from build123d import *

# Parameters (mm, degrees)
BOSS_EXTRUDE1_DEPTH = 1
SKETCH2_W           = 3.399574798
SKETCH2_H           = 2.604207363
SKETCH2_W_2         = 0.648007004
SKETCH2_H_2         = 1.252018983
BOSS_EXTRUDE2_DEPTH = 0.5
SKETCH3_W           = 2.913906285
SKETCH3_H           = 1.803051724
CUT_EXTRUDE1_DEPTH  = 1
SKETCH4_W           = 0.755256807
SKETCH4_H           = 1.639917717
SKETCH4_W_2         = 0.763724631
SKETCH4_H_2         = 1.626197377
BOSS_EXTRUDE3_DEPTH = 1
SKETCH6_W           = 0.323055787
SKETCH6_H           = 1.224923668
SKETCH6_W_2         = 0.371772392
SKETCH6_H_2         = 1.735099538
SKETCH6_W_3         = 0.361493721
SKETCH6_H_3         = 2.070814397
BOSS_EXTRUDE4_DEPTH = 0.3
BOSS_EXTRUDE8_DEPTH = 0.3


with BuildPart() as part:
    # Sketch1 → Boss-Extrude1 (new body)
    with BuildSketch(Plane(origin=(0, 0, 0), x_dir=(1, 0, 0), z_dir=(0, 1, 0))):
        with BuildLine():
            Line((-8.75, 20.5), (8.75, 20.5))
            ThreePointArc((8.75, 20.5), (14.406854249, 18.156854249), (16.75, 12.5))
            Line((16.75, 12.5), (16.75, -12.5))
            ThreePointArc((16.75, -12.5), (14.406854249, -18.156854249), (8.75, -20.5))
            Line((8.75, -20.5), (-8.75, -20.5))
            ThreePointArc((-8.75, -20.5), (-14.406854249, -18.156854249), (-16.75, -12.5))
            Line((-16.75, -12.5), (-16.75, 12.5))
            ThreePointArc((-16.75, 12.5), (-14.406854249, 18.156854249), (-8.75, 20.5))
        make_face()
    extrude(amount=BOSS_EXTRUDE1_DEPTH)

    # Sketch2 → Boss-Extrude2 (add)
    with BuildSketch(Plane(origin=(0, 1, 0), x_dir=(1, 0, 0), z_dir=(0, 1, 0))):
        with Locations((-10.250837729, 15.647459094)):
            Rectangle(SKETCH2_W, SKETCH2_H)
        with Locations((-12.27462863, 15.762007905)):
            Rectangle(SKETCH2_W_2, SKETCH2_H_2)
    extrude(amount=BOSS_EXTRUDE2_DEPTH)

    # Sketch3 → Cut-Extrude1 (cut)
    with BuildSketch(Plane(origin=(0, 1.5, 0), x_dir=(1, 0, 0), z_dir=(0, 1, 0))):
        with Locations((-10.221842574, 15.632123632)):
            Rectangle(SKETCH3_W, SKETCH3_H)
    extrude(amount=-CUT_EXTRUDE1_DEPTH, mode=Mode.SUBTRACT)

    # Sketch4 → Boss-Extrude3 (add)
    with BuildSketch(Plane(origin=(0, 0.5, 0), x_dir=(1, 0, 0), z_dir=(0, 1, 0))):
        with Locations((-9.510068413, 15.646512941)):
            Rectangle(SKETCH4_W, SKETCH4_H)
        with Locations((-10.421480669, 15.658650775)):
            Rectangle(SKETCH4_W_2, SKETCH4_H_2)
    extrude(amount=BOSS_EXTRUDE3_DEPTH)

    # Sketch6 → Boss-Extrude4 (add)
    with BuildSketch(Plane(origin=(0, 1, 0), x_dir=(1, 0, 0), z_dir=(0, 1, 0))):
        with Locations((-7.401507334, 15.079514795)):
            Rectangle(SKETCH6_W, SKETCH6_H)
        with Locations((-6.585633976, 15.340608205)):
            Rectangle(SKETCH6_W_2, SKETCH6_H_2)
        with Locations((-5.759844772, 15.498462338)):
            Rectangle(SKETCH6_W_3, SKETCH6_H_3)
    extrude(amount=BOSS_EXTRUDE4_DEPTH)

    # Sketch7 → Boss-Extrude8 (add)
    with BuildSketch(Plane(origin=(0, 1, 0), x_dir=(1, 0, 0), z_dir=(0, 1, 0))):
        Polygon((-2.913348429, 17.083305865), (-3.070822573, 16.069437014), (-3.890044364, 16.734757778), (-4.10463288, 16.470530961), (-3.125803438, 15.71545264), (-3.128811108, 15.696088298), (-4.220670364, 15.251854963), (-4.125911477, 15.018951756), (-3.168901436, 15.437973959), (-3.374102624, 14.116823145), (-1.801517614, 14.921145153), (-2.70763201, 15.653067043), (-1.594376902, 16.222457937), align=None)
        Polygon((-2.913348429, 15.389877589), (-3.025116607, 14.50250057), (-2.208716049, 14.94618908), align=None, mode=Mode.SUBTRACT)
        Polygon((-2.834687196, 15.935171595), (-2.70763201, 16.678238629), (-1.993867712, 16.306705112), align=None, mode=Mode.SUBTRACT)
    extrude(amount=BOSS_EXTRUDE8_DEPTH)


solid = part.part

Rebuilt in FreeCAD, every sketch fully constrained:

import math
import FreeCAD as App
import Part
import Sketcher
from FreeCAD import Vector
Q = App.Units.Quantity

doc = App.newDocument("Part")
body = doc.addObject("PartDesign::Body", "Body")

# Sketch on XZ plane
sketch1 = body.newObject("Sketcher::SketchObject", "Sketch")
sketch1.AttachmentSupport = (doc.getObject("XZ_Plane"), [""])
sketch1.MapMode = "FlatFace"
sketch1.addGeometry([
    Part.LineSegment(Vector(9, -20, 0), Vector(-9, -20, 0)),  # 0
    Part.ArcOfCircle(Part.Circle(Vector(-9, -12, 0), Vector(0, 0, 1), 8), math.radians(-180), math.radians(-90)),  # 1
    Part.LineSegment(Vector(-17, -12, 0), Vector(-17, 12, 0)),  # 2
    Part.ArcOfCircle(Part.Circle(Vector(-9, 12, 0), Vector(0, 0, 1), 8), math.radians(90), math.radians(180)),  # 3
    Part.LineSegment(Vector(-9, 20, 0), Vector(9, 20, 0)),  # 4
    Part.ArcOfCircle(Part.Circle(Vector(9, 12, 0), Vector(0, 0, 1), 8), math.radians(0), math.radians(90)),  # 5
    Part.LineSegment(Vector(17, 12, 0), Vector(17, -12, 0)),  # 6
    Part.ArcOfCircle(Part.Circle(Vector(9, -12, 0), Vector(0, 0, 1), 8), math.radians(-90), math.radians(0)),  # 7
], False)
sketch1.addConstraint([
    Sketcher.Constraint("Tangent", 0, 2, 1, 2),
    Sketcher.Constraint("Tangent", 1, 1, 2, 1),
    Sketcher.Constraint("Tangent", 2, 2, 3, 2),
    Sketcher.Constraint("Tangent", 3, 1, 4, 1),
    Sketcher.Constraint("Tangent", 4, 2, 5, 2),
    Sketcher.Constraint("Tangent", 5, 1, 6, 1),
    Sketcher.Constraint("Tangent", 6, 2, 7, 2),
    Sketcher.Constraint("Tangent", 7, 1, 0, 1),
    Sketcher.Constraint("Horizontal", 0),
    Sketcher.Constraint("Vertical", 2),
    Sketcher.Constraint("Horizontal", 4),
    Sketcher.Constraint("Vertical", 6),
    Sketcher.Constraint("Equal", 1, 3),
    Sketcher.Constraint("Equal", 3, 5),
    Sketcher.Constraint("Equal", 5, 7),
    Sketcher.Constraint("Symmetric", 1, 3, 5, 3, -1, 1),
    Sketcher.Constraint("Radius", 1, Q("8 mm")),
    Sketcher.Constraint("DistanceY", 2, 1, 2, 2, Q("25 mm")),
    Sketcher.Constraint("DistanceX", 0, 2, 0, 1, Q("17.5 mm")),
])
pad1 = body.newObject("PartDesign::Pad", "Pad")
pad1.Profile = sketch1
pad1.Length = 1
pad1.Reversed = True

# Sketch on XZ plane
sketch2 = body.newObject("Sketcher::SketchObject", "Sketch001")
sketch2.AttachmentSupport = (doc.getObject("XZ_Plane"), [""])
sketch2.MapMode = "FlatFace"
sketch2.AttachmentOffset = App.Placement(Vector(0, 0, -1), App.Rotation())
sketch2.addGeometry([
    Part.LineSegment(Vector(-12, -15.1, 0), Vector(-12, -14.3, 0)),  # 0
    Part.LineSegment(Vector(-12, -14.3, 0), Vector(-8.6, -14.3, 0)),  # 1
    Part.LineSegment(Vector(-8.6, -14.3, 0), Vector(-8.6, -16.9, 0)),  # 2
    Part.LineSegment(Vector(-8.6, -16.9, 0), Vector(-12, -16.9, 0)),  # 3
    Part.LineSegment(Vector(-12, -16.9, 0), Vector(-12, -16.4, 0)),  # 4
    Part.LineSegment(Vector(-12, -16.4, 0), Vector(-12.6, -16.4, 0)),  # 5
    Part.LineSegment(Vector(-12.6, -16.4, 0), Vector(-12.6, -15.1, 0)),  # 6
    Part.LineSegment(Vector(-12.6, -15.1, 0), Vector(-12, -15.1, 0)),  # 7
], False)
sketch2.addConstraint([
    Sketcher.Constraint("Coincident", 0, 2, 1, 1),
    Sketcher.Constraint("Coincident", 1, 2, 2, 1),
    Sketcher.Constraint("Coincident", 2, 2, 3, 1),
    Sketcher.Constraint("Coincident", 3, 2, 4, 1),
    Sketcher.Constraint("Coincident", 4, 2, 5, 1),
    Sketcher.Constraint("Coincident", 5, 2, 6, 1),
    Sketcher.Constraint("Coincident", 6, 2, 7, 1),
    Sketcher.Constraint("Coincident", 7, 2, 0, 1),
    Sketcher.Constraint("Vertical", 0),
    Sketcher.Constraint("Horizontal", 1),
    Sketcher.Constraint("Vertical", 2),
    Sketcher.Constraint("Horizontal", 3),
    Sketcher.Constraint("Vertical", 4),
    Sketcher.Constraint("Horizontal", 5),
    Sketcher.Constraint("Vertical", 6),
    Sketcher.Constraint("Horizontal", 7),
    Sketcher.Constraint("Vertical", 0, 2, 3, 2),
    Sketcher.Constraint("DistanceY", 6, 2, -1, 1, Q("15.135998 mm")),
    Sketcher.Constraint("DistanceY", 6, 1, 6, 2, Q("1.252019 mm")),
    Sketcher.Constraint("DistanceX", 1, 1, 1, 2, Q("3.399575 mm")),
    Sketcher.Constraint("DistanceX", 5, 2, 5, 1, Q("0.648007 mm")),
    Sketcher.Constraint("DistanceY", 0, 1, 0, 2, Q("0.790643 mm")),
    Sketcher.Constraint("DistanceY", 2, 2, 2, 1, Q("2.604207 mm")),
    Sketcher.Constraint("DistanceX", 1, 2, -1, 1, Q("8.55105 mm")),
])
pad2 = body.newObject("PartDesign::Pad", "Pad001")
pad2.Profile = sketch2
pad2.Length = 0.5
pad2.Reversed = True

# Sketch on XZ plane
sketch3 = body.newObject("Sketcher::SketchObject", "Sketch002")
sketch3.AttachmentSupport = (doc.getObject("XZ_Plane"), [""])
sketch3.MapMode = "FlatFace"
sketch3.AttachmentOffset = App.Placement(Vector(0, 0, -1.5), App.Rotation())
sketch3.addGeometry([
    Part.LineSegment(Vector(-11.7, -16.5, 0), Vector(-11.7, -14.7, 0)),
    Part.LineSegment(Vector(-11.7, -14.7, 0), Vector(-8.8, -14.7, 0)),
    Part.LineSegment(Vector(-8.8, -14.7, 0), Vector(-8.8, -16.5, 0)),
    Part.LineSegment(Vector(-8.8, -16.5, 0), Vector(-11.7, -16.5, 0)),
], False)
sketch3.addConstraint([
    Sketcher.Constraint("Coincident", 0, 2, 1, 1),
    Sketcher.Constraint("Coincident", 1, 2, 2, 1),
    Sketcher.Constraint("Coincident", 2, 2, 3, 1),
    Sketcher.Constraint("Coincident", 3, 2, 0, 1),
    Sketcher.Constraint("Vertical", 0),
    Sketcher.Constraint("Horizontal", 1),
    Sketcher.Constraint("Vertical", 2),
    Sketcher.Constraint("Horizontal", 3),
    Sketcher.Constraint("DistanceY", 0, 1, 0, 2, Q("1.803052 mm")),
    Sketcher.Constraint("DistanceX", 1, 1, 1, 2, Q("2.913906 mm")),
    Sketcher.Constraint("DistanceX", 1, 2, -1, 1, Q("8.764889 mm")),
    Sketcher.Constraint("DistanceY", 2, 2, -1, 1, Q("16.533649 mm")),
])
pocket1 = body.newObject("PartDesign::Pocket", "Pocket")
pocket1.Profile = sketch3
pocket1.Length = 1
pocket1.Reversed = True

# Sketch on XZ plane
sketch4 = body.newObject("Sketcher::SketchObject", "Sketch003")
sketch4.AttachmentSupport = (doc.getObject("XZ_Plane"), [""])
sketch4.MapMode = "FlatFace"
sketch4.AttachmentOffset = App.Placement(Vector(0, 0, -0.5), App.Rotation())
sketch4.addGeometry([
    Part.LineSegment(Vector(-9.9, -16.5, 0), Vector(-9.9, -14.8, 0)),  # 0
    Part.LineSegment(Vector(-9.9, -14.8, 0), Vector(-9.1, -14.8, 0)),  # 1
    Part.LineSegment(Vector(-9.1, -14.8, 0), Vector(-9.1, -16.5, 0)),  # 2
    Part.LineSegment(Vector(-9.1, -16.5, 0), Vector(-9.9, -16.5, 0)),  # 3
    Part.LineSegment(Vector(-10.8, -16.5, 0), Vector(-10.8, -14.8, 0)),  # 4
    Part.LineSegment(Vector(-10.8, -14.8, 0), Vector(-10, -14.8, 0)),  # 5
    Part.LineSegment(Vector(-10, -14.8, 0), Vector(-10, -16.5, 0)),  # 6
    Part.LineSegment(Vector(-10, -16.5, 0), Vector(-10.8, -16.5, 0)),  # 7
], False)
sketch4.addConstraint([
    Sketcher.Constraint("Coincident", 0, 2, 1, 1),
    Sketcher.Constraint("Coincident", 1, 2, 2, 1),
    Sketcher.Constraint("Coincident", 2, 2, 3, 1),
    Sketcher.Constraint("Coincident", 3, 2, 0, 1),
    Sketcher.Constraint("Coincident", 4, 2, 5, 1),
    Sketcher.Constraint("Coincident", 5, 2, 6, 1),
    Sketcher.Constraint("Coincident", 6, 2, 7, 1),
    Sketcher.Constraint("Coincident", 7, 2, 4, 1),
    Sketcher.Constraint("Vertical", 0),
    Sketcher.Constraint("Horizontal", 1),
    Sketcher.Constraint("Vertical", 2),
    Sketcher.Constraint("Horizontal", 3),
    Sketcher.Constraint("Vertical", 4),
    Sketcher.Constraint("Horizontal", 5),
    Sketcher.Constraint("Vertical", 6),
    Sketcher.Constraint("Horizontal", 7),
    Sketcher.Constraint("DistanceY", 4, 2, 0, 2, Q("0.018998 mm")),
    Sketcher.Constraint("DistanceX", 1, 1, 1, 2, Q("0.755257 mm")),
    Sketcher.Constraint("DistanceX", 5, 1, 5, 2, Q("0.763725 mm")),
    Sketcher.Constraint("DistanceY", 0, 1, 0, 2, Q("1.639918 mm")),
    Sketcher.Constraint("DistanceY", 4, 1, 4, 2, Q("1.626197 mm")),
    Sketcher.Constraint("DistanceX", 1, 2, -1, 1, Q("9.13244 mm")),
    Sketcher.Constraint("DistanceY", 2, 2, -1, 1, Q("16.466472 mm")),
    Sketcher.Constraint("DistanceX", 5, 2, -1, 1, Q("10.039618 mm")),
])
pad3 = body.newObject("PartDesign::Pad", "Pad002")
pad3.Profile = sketch4
pad3.Length = 1
pad3.Reversed = True

# Sketch on XZ plane
sketch5 = body.newObject("Sketcher::SketchObject", "Sketch004")
sketch5.AttachmentSupport = (doc.getObject("XZ_Plane"), [""])
sketch5.MapMode = "FlatFace"
sketch5.AttachmentOffset = App.Placement(Vector(0, 0, -1), App.Rotation())
sketch5.addGeometry([
    Part.LineSegment(Vector(-7.56, -15.69, 0), Vector(-7.56, -14.47, 0)),  # 0
    Part.LineSegment(Vector(-7.56, -14.47, 0), Vector(-7.24, -14.47, 0)),  # 1
    Part.LineSegment(Vector(-7.24, -14.47, 0), Vector(-7.24, -15.69, 0)),  # 2
    Part.LineSegment(Vector(-7.24, -15.69, 0), Vector(-7.56, -15.69, 0)),  # 3
    Part.LineSegment(Vector(-6.77, -16.21, 0), Vector(-6.77, -14.47, 0)),  # 4
    Part.LineSegment(Vector(-6.77, -14.47, 0), Vector(-6.4, -14.47, 0)),  # 5
    Part.LineSegment(Vector(-6.4, -14.47, 0), Vector(-6.4, -16.21, 0)),  # 6
    Part.LineSegment(Vector(-6.4, -16.21, 0), Vector(-6.77, -16.21, 0)),  # 7
    Part.LineSegment(Vector(-5.94, -16.53, 0), Vector(-5.94, -14.46, 0)),  # 8
    Part.LineSegment(Vector(-5.94, -14.46, 0), Vector(-5.58, -14.46, 0)),  # 9
    Part.LineSegment(Vector(-5.58, -14.46, 0), Vector(-5.58, -16.53, 0)),  # 10
    Part.LineSegment(Vector(-5.58, -16.53, 0), Vector(-5.94, -16.53, 0)),  # 11
], False)
sketch5.addConstraint([
    Sketcher.Constraint("Coincident", 0, 2, 1, 1),
    Sketcher.Constraint("Coincident", 1, 2, 2, 1),
    Sketcher.Constraint("Coincident", 2, 2, 3, 1),
    Sketcher.Constraint("Coincident", 3, 2, 0, 1),
    Sketcher.Constraint("Coincident", 4, 2, 5, 1),
    Sketcher.Constraint("Coincident", 5, 2, 6, 1),
    Sketcher.Constraint("Coincident", 6, 2, 7, 1),
    Sketcher.Constraint("Coincident", 7, 2, 4, 1),
    Sketcher.Constraint("Coincident", 8, 2, 9, 1),
    Sketcher.Constraint("Coincident", 9, 2, 10, 1),
    Sketcher.Constraint("Coincident", 10, 2, 11, 1),
    Sketcher.Constraint("Coincident", 11, 2, 8, 1),
    Sketcher.Constraint("Vertical", 0),
    Sketcher.Constraint("Horizontal", 1),
    Sketcher.Constraint("Vertical", 2),
    Sketcher.Constraint("Horizontal", 3),
    Sketcher.Constraint("Vertical", 4),
    Sketcher.Constraint("Horizontal", 5),
    Sketcher.Constraint("Vertical", 6),
    Sketcher.Constraint("Horizontal", 7),
    Sketcher.Constraint("Vertical", 8),
    Sketcher.Constraint("Horizontal", 9),
    Sketcher.Constraint("Vertical", 10),
    Sketcher.Constraint("Horizontal", 11),
    Sketcher.Constraint("DistanceY", 4, 1, 4, 2, Q("1.7351 mm")),
    Sketcher.Constraint("DistanceX", 1, 1, 1, 2, Q("0.323056 mm")),
    Sketcher.Constraint("DistanceX", 5, 1, 5, 2, Q("0.371772 mm")),
    Sketcher.Constraint("DistanceX", 9, 1, 9, 2, Q("0.361494 mm")),
    Sketcher.Constraint("DistanceY", 0, 1, 0, 2, Q("1.224924 mm")),
    Sketcher.Constraint("DistanceY", 8, 1, 8, 2, Q("2.070814 mm")),
    Sketcher.Constraint("DistanceX", 1, 2, -1, 1, Q("7.239979 mm")),
    Sketcher.Constraint("DistanceX", 4, 2, -1, 1, Q("6.77152 mm")),
    Sketcher.Constraint("DistanceY", 4, 2, -1, 1, Q("14.473058 mm")),
    Sketcher.Constraint("DistanceX", 8, 2, -1, 1, Q("5.940592 mm")),
    Sketcher.Constraint("DistanceY", 10, 2, -1, 1, Q("16.53387 mm")),
    Sketcher.Constraint("DistanceY", 2, 2, 4, 2, Q("1.218918 mm")),
])
pad4 = body.newObject("PartDesign::Pad", "Pad003")
pad4.Profile = sketch5
pad4.Length = 0.3
pad4.Reversed = True

# Sketch on XZ plane
sketch6 = body.newObject("Sketcher::SketchObject", "Sketch005")
sketch6.AttachmentSupport = (doc.getObject("XZ_Plane"), [""])
sketch6.MapMode = "FlatFace"
sketch6.AttachmentOffset = App.Placement(Vector(0, 0, -1), App.Rotation())
sketch6.addGeometry([
    Part.LineSegment(Vector(-2.913, -17.083, 0), Vector(-3.071, -16.069, 0)),  # 0
    Part.LineSegment(Vector(-3.071, -16.069, 0), Vector(-3.89, -16.735, 0)),  # 1
    Part.LineSegment(Vector(-3.89, -16.735, 0), Vector(-4.105, -16.471, 0)),  # 2
    Part.LineSegment(Vector(-4.105, -16.471, 0), Vector(-3.126, -15.715, 0)),  # 3
    Part.LineSegment(Vector(-3.126, -15.715, 0), Vector(-3.129, -15.696, 0)),  # 4
    Part.LineSegment(Vector(-3.129, -15.696, 0), Vector(-4.221, -15.252, 0)),  # 5
    Part.LineSegment(Vector(-4.221, -15.252, 0), Vector(-4.126, -15.019, 0)),  # 6
    Part.LineSegment(Vector(-4.126, -15.019, 0), Vector(-3.169, -15.438, 0)),  # 7
    Part.LineSegment(Vector(-3.169, -15.438, 0), Vector(-3.374, -14.117, 0)),  # 8
    Part.LineSegment(Vector(-3.374, -14.117, 0), Vector(-1.802, -14.921, 0)),  # 9
    Part.LineSegment(Vector(-1.802, -14.921, 0), Vector(-2.708, -15.653, 0)),  # 10
    Part.LineSegment(Vector(-2.708, -15.653, 0), Vector(-1.594, -16.222, 0)),  # 11
    Part.LineSegment(Vector(-1.594, -16.222, 0), Vector(-2.913, -17.083, 0)),  # 12
    Part.LineSegment(Vector(-3.025, -14.503, 0), Vector(-2.913, -15.39, 0)),  # 13
    Part.LineSegment(Vector(-2.913, -15.39, 0), Vector(-2.209, -14.946, 0)),  # 14
    Part.LineSegment(Vector(-2.209, -14.946, 0), Vector(-3.025, -14.503, 0)),  # 15
    Part.LineSegment(Vector(-1.994, -16.307, 0), Vector(-2.835, -15.935, 0)),  # 16
    Part.LineSegment(Vector(-2.835, -15.935, 0), Vector(-2.708, -16.678, 0)),  # 17
    Part.LineSegment(Vector(-2.708, -16.678, 0), Vector(-1.994, -16.307, 0)),  # 18
], False)
sketch6.addConstraint([
    Sketcher.Constraint("Coincident", 0, 2, 1, 1),
    Sketcher.Constraint("Coincident", 1, 2, 2, 1),
    Sketcher.Constraint("Coincident", 2, 2, 3, 1),
    Sketcher.Constraint("Coincident", 3, 2, 4, 1),
    Sketcher.Constraint("Coincident", 4, 2, 5, 1),
    Sketcher.Constraint("Coincident", 5, 2, 6, 1),
    Sketcher.Constraint("Coincident", 6, 2, 7, 1),
    Sketcher.Constraint("Coincident", 7, 2, 8, 1),
    Sketcher.Constraint("Coincident", 8, 2, 9, 1),
    Sketcher.Constraint("Coincident", 9, 2, 10, 1),
    Sketcher.Constraint("Coincident", 10, 2, 11, 1),
    Sketcher.Constraint("Coincident", 11, 2, 12, 1),
    Sketcher.Constraint("Coincident", 12, 2, 0, 1),
    Sketcher.Constraint("Coincident", 13, 2, 14, 1),
    Sketcher.Constraint("Coincident", 14, 2, 15, 1),
    Sketcher.Constraint("Coincident", 15, 2, 13, 1),
    Sketcher.Constraint("Coincident", 16, 2, 17, 1),
    Sketcher.Constraint("Coincident", 17, 2, 18, 1),
    Sketcher.Constraint("Coincident", 18, 2, 16, 1),
    Sketcher.Constraint("Perpendicular", 1, 2),
    Sketcher.Constraint("Parallel", 0, 4),
    Sketcher.Constraint("Perpendicular", 5, 6),
    Sketcher.Constraint("Parallel", 4, 8),
    Sketcher.Constraint("Parallel", 9, 11),
    Sketcher.Constraint("Vertical", 12, 2, 13, 2),
    Sketcher.Constraint("Vertical", 10, 2, 17, 2),
    Sketcher.Constraint("DistanceX", 7, 2, -1, 1, Q("3.168901 mm")),
    Sketcher.Constraint("DistanceY", 15, 2, -1, 1, Q("14.502501 mm")),
    Sketcher.Constraint("DistanceX", 6, 2, 4, 2, Q("0.9971 mm")),
    Sketcher.Constraint("DistanceY", 3, 2, 6, 2, Q("0.696501 mm")),
    Sketcher.Constraint("DistanceX", 8, 2, 7, 2, Q("0.205201 mm")),
    Sketcher.Constraint("DistanceX", 8, 2, 3, 2, Q("0.248299 mm")),
    Sketcher.Constraint("DistanceX", 14, 2, 9, 2, Q("0.407198 mm")),
    Sketcher.Constraint("DistanceY", 4, 2, 14, 2, Q("0.749899 mm")),
    Sketcher.Constraint("DistanceX", 15, 2, 14, 2, Q("0.816401 mm")),
    Sketcher.Constraint("DistanceY", 17, 2, 0, 2, Q("0.608802 mm")),
    Sketcher.Constraint("Distance", 2, Q("0.340388 mm")),
    Sketcher.Constraint("Distance", 5, Q("1.17877 mm")),
    Sketcher.Constraint("Distance", 8, Q("1.336992 mm")),
    Sketcher.Constraint("Distance", 9, Q("1.76634 mm")),
    Sketcher.Constraint("Distance", 12, Q("1.575038 mm")),
    Sketcher.Constraint("Distance", 13, Q("0.894388 mm")),
    Sketcher.Constraint("Distance", 17, Q("0.753851 mm")),
    Sketcher.Constraint("Distance", 18, Q("0.804672 mm")),
    Sketcher.Constraint("DistanceY", 2, 2, -1, 1, Q("16.470531 mm")),
    Sketcher.Constraint("DistanceX", 4, 2, -1, 1, Q("3.128811 mm")),
    Sketcher.Constraint("DistanceY", 4, 2, -1, 1, Q("15.696088 mm")),
    Sketcher.Constraint("DistanceX", 12, 2, -1, 1, Q("2.913348 mm")),
    Sketcher.Constraint("DistanceY", 16, 2, -1, 1, Q("15.935172 mm")),
    Sketcher.Constraint("DistanceY", 17, 2, -1, 1, Q("16.678239 mm")),
    Sketcher.Constraint("DistanceX", 1, 2, 0, 2, Q("0.819222 mm")),
    Sketcher.Constraint("DistanceX", 3, 2, 0, 2, Q("0.054981 mm")),
    Sketcher.Constraint("DistanceY", 3, 2, 7, 2, Q("0.277479 mm")),
    Sketcher.Constraint("DistanceY", 7, 2, 9, 2, Q("0.516829 mm")),
    Sketcher.Constraint("DistanceX", 3, 2, 10, 2, Q("0.418171 mm")),
    Sketcher.Constraint("DistanceY", 4, 2, 10, 2, Q("0.043021 mm")),
    Sketcher.Constraint("DistanceX", 18, 2, 11, 2, Q("0.399491 mm")),
])
pad5 = body.newObject("PartDesign::Pad", "Pad004")
pad5.Profile = sketch6
pad5.Length = 0.3
pad5.Reversed = True

doc.recompute()
